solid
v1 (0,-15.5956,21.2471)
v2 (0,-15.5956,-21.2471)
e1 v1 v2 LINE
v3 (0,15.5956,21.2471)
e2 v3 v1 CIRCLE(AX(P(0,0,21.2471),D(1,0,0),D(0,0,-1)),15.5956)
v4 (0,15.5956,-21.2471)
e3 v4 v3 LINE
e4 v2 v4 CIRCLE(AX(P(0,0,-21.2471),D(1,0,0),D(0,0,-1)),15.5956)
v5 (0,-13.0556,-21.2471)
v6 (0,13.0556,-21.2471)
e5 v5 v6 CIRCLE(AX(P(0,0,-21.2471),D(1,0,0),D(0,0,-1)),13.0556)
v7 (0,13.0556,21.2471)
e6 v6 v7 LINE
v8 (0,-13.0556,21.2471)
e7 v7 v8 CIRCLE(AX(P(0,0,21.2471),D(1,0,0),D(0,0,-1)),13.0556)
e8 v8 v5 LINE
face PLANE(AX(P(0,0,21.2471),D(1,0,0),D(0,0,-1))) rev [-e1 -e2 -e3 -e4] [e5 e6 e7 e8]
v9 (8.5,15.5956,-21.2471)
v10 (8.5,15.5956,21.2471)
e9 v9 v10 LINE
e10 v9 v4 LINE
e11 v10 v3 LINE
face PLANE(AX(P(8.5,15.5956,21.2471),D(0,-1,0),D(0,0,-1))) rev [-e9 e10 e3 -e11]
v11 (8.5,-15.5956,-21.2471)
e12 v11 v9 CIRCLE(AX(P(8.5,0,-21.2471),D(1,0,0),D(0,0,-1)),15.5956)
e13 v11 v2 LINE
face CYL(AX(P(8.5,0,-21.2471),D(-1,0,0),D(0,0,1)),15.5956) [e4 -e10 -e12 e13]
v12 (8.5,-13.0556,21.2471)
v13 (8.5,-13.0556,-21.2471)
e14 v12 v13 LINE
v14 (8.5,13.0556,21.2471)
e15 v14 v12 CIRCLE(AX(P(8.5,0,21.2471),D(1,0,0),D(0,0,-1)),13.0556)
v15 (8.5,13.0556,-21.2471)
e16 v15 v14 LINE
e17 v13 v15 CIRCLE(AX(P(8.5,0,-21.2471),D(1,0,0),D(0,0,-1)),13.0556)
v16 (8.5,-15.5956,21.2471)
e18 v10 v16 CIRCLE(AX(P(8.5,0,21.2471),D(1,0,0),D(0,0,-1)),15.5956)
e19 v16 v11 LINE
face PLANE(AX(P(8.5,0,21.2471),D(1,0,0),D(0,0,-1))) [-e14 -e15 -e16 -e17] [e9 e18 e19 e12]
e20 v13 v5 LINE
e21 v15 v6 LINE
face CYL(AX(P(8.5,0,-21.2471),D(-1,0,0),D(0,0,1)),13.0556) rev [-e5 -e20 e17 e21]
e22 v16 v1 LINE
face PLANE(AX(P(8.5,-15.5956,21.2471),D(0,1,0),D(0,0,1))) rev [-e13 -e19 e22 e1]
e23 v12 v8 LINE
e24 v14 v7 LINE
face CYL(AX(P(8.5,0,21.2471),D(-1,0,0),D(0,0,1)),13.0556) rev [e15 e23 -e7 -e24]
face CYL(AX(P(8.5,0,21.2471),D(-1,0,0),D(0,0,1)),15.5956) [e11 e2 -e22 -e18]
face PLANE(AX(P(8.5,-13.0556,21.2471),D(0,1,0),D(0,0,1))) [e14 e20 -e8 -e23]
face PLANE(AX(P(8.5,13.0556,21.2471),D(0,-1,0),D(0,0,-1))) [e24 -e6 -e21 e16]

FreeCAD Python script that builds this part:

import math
import FreeCAD as App
import Part
import Sketcher
from FreeCAD import Vector
Q = App.Units.Quantity

doc = App.newDocument("Part")
body = doc.addObject("PartDesign::Body", "Body")

sketch1 = doc.addObject("Sketcher::SketchObject", "Sketch")
body.addObject(sketch1)
sketch1.AttachmentSupport = (doc.YZ_Plane, [""])
sketch1.MapMode = "FlatFace"
sketch1.addGeometry(Part.LineSegment(Vector(-16, 21, 0), Vector(-16, -21, 0)), False)
sketch1.addGeometry(Part.ArcOfCircle(Part.Circle(Vector(0, -21, 0), Vector(0, 0, 1), 16), math.radians(180), math.radians(360)), False)
sketch1.addGeometry(Part.LineSegment(Vector(16, -21, 0), Vector(16, 21, 0)), False)
sketch1.addGeometry(Part.ArcOfCircle(Part.Circle(Vector(0, 21, 0), Vector(0, 0, 1), 16), math.radians(0), math.radians(180)), False)
sketch1.addGeometry(Part.LineSegment(Vector(-13, -21, 0), Vector(-13, 21, 0)), False)
sketch1.addGeometry(Part.ArcOfCircle(Part.Circle(Vector(0, 21, 0), Vector(0, 0, 1), 13), math.radians(0), math.radians(180)), False)
sketch1.addGeometry(Part.LineSegment(Vector(13, 21, 0), Vector(13, -21, 0)), False)
sketch1.addGeometry(Part.ArcOfCircle(Part.Circle(Vector(0, -21, 0), Vector(0, 0, 1), 13), math.radians(180), math.radians(360)), False)
sketch1.addConstraint(Sketcher.Constraint("Tangent", 0, 2, 1, 1))
sketch1.addConstraint(Sketcher.Constraint("Tangent", 1, 2, 2, 1))
sketch1.addConstraint(Sketcher.Constraint("Tangent", 2, 2, 3, 1))
sketch1.addConstraint(Sketcher.Constraint("Tangent", 3, 2, 0, 1))
sketch1.addConstraint(Sketcher.Constraint("Tangent", 4, 2, 5, 2))
sketch1.addConstraint(Sketcher.Constraint("Tangent", 5, 1, 6, 1))
sketch1.addConstraint(Sketcher.Constraint("Tangent", 6, 2, 7, 2))
sketch1.addConstraint(Sketcher.Constraint("Tangent", 7, 1, 4, 1))
sketch1.addConstraint(Sketcher.Constraint("Vertical", 0))
sketch1.addConstraint(Sketcher.Constraint("Vertical", 2))
sketch1.addConstraint(Sketcher.Constraint("Vertical", 4))
sketch1.addConstraint(Sketcher.Constraint("Vertical", 6))
sketch1.addConstraint(Sketcher.Constraint("Coincident", 5, 3, 3, 3))
sketch1.addConstraint(Sketcher.Constraint("Symmetric", 1, 3, 3, 3, -1, 1))
sketch1.addConstraint(Sketcher.Constraint("Horizontal", 7, 3, 0, 2))
sketch1.addConstraint(Sketcher.Constraint("Radius", 1, Q("0.614 in")))
sketch1.addConstraint(Sketcher.Constraint("Radius", 5, Q("0.514 in")))
sketch1.addConstraint(Sketcher.Constraint("DistanceY", 0, 2, 0, 1, Q("1.673 in")))
pad1 = doc.addObject("PartDesign::Pad", "Pad")
body.addObject(pad1)
pad1.Profile = sketch1
pad1.Length = 8.5

doc.recompute()
